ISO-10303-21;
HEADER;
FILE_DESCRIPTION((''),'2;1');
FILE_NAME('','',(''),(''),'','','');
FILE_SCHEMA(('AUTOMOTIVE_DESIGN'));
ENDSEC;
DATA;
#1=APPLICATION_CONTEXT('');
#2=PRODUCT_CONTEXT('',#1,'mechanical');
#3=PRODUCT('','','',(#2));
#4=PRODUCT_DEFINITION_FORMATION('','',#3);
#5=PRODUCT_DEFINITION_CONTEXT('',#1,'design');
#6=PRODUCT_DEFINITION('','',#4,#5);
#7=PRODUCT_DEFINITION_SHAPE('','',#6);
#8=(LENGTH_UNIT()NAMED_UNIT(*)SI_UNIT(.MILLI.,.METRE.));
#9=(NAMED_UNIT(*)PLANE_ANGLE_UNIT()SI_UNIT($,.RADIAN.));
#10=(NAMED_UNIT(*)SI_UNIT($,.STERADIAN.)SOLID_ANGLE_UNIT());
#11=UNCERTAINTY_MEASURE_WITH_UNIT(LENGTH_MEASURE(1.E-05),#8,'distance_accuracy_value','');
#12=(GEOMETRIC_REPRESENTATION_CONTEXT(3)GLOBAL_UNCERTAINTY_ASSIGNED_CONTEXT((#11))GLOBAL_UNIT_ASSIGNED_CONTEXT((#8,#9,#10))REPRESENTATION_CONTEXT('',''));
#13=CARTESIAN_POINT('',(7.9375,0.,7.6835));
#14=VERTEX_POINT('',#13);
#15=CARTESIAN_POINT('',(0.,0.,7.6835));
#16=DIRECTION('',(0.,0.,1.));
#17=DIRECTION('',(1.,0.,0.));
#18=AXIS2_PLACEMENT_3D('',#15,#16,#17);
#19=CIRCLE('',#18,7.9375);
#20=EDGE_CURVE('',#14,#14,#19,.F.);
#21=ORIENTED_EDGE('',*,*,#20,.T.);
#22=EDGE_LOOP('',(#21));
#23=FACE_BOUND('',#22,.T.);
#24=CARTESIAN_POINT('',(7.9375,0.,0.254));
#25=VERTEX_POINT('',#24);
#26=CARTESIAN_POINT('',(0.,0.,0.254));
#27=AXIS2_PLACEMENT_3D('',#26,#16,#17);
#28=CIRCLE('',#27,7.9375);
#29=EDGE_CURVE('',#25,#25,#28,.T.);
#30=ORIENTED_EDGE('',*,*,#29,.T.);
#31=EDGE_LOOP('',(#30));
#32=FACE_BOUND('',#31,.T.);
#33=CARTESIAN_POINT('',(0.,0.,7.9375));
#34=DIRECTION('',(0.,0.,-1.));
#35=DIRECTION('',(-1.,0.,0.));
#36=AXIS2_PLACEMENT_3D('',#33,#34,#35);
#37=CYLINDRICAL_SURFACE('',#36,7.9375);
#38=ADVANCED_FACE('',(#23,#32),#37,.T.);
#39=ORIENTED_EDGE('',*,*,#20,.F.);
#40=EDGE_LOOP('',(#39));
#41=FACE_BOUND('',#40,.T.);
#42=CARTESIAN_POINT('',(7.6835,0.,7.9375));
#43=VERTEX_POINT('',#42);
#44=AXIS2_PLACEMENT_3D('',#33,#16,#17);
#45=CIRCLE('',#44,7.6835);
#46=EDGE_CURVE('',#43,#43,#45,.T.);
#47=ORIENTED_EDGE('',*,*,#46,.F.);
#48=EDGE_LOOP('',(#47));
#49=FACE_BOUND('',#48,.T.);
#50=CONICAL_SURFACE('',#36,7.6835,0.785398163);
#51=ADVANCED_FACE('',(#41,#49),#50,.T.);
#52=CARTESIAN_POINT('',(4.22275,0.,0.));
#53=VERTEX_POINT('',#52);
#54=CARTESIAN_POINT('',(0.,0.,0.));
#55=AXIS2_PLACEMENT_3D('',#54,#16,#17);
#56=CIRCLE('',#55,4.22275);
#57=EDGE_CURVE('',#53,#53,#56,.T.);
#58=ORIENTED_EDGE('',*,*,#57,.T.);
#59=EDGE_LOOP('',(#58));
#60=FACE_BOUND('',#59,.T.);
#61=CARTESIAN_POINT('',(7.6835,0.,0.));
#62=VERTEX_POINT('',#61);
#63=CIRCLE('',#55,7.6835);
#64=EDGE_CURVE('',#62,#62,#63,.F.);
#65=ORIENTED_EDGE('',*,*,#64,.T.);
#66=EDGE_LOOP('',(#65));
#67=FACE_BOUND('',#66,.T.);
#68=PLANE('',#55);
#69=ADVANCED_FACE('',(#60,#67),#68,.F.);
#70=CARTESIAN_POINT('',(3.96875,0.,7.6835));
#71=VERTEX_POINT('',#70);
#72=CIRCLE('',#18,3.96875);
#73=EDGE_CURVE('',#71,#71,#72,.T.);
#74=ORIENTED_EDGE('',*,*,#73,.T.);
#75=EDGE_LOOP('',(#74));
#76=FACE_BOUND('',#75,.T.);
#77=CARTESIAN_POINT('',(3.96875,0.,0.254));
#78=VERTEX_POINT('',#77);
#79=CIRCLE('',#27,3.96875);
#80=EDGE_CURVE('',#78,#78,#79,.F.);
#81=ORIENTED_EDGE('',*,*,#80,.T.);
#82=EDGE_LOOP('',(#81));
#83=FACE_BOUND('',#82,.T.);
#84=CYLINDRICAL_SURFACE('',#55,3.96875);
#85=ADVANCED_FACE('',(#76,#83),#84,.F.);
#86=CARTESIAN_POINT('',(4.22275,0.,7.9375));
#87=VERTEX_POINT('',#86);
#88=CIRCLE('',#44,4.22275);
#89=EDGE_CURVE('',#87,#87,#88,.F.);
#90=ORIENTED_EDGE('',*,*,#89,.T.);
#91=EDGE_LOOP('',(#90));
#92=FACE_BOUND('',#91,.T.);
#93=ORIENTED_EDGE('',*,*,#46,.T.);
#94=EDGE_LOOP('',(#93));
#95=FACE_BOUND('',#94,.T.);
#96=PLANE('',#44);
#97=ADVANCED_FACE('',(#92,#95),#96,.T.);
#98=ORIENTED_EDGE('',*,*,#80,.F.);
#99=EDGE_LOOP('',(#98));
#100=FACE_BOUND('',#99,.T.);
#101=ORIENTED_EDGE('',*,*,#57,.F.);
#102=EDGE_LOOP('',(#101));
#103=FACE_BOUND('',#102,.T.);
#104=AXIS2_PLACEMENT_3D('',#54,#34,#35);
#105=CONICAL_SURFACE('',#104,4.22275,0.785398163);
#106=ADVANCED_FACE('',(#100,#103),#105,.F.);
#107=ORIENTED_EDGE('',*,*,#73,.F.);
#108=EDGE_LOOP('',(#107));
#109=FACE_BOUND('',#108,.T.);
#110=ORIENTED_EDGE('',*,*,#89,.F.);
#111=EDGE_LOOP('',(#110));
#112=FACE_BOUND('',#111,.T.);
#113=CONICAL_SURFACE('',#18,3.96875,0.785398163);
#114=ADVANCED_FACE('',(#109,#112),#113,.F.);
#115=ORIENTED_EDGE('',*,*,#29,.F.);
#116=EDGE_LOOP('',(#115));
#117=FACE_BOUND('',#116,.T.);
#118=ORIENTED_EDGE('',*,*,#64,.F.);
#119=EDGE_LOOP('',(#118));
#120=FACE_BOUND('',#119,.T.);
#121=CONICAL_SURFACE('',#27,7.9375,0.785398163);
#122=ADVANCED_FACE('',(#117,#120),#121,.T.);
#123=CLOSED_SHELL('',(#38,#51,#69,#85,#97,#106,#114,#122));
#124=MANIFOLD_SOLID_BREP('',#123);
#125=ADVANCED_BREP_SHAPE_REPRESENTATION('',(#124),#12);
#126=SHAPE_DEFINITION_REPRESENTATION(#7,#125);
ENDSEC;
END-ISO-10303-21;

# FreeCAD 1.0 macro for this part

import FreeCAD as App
import Part
import Sketcher
from FreeCAD import Vector
Q = App.Units.Quantity


def edges_at(feature, points):
    """Names of the edges that pass closest to the given points."""
    edges = feature.Shape.Edges
    near = lambda p: min(range(len(edges)), key=lambda i: edges[i].distToShape(Part.Vertex(*p))[0])
    return sorted({f"Edge{near(p) + 1}" for p in points})

doc = App.newDocument("Part")
body = doc.addObject("PartDesign::Body", "Body")

# Sketch on XY plane
sketch1 = body.newObject("Sketcher::SketchObject", "Sketch")
sketch1.AttachmentSupport = (doc.getObject("XY_Plane"), [""])
sketch1.MapMode = "FlatFace"
sketch1.addGeometry(Part.Circle(Vector(0, 0, 0), Vector(0, 0, 1), 7.9375), False)
sketch1.addConstraint([
    Sketcher.Constraint("Coincident", 0, 3, -1, 1),
    Sketcher.Constraint("Diameter", 0, Q("0.625 in")),
])
pad1 = body.newObject("PartDesign::Pad", "Pad")
pad1.Profile = sketch1
pad1.Length = Q("0.3125 in")

# Sketch on XY plane
sketch2 = body.newObject("Sketcher::SketchObject", "Sketch001")
sketch2.AttachmentSupport = (doc.getObject("XY_Plane"), [""])
sketch2.MapMode = "FlatFace"
sketch2.AttachmentOffset = App.Placement(Vector(0, 0, 0.3125 * 25.4), App.Rotation())
sketch2.addGeometry(Part.Circle(Vector(0, 0, 0), Vector(0, 0, 1), 3.96875), False)
sketch2.addConstraint([
    Sketcher.Constraint("Coincident", 0, 3, -1, 1),
    Sketcher.Constraint("Diameter", 0, Q("0.3125 in")),
])
pocket1 = body.newObject("PartDesign::Pocket", "Pocket")
pocket1.Profile = sketch2
pocket1.Length = Q("0.3125 in")
doc.recompute()

chamfer = body.newObject("PartDesign::Chamfer", "Chamfer")
chamfer.Base = (pocket1, edges_at(pocket1, [
    (-7.938, 0, 0),
    (-7.938, 0, 7.938),
    (-3.969, 0, 0),
    (-3.969, 0, 7.938),
]))
chamfer.Size = Q("0.01 in")

doc.recompute()
